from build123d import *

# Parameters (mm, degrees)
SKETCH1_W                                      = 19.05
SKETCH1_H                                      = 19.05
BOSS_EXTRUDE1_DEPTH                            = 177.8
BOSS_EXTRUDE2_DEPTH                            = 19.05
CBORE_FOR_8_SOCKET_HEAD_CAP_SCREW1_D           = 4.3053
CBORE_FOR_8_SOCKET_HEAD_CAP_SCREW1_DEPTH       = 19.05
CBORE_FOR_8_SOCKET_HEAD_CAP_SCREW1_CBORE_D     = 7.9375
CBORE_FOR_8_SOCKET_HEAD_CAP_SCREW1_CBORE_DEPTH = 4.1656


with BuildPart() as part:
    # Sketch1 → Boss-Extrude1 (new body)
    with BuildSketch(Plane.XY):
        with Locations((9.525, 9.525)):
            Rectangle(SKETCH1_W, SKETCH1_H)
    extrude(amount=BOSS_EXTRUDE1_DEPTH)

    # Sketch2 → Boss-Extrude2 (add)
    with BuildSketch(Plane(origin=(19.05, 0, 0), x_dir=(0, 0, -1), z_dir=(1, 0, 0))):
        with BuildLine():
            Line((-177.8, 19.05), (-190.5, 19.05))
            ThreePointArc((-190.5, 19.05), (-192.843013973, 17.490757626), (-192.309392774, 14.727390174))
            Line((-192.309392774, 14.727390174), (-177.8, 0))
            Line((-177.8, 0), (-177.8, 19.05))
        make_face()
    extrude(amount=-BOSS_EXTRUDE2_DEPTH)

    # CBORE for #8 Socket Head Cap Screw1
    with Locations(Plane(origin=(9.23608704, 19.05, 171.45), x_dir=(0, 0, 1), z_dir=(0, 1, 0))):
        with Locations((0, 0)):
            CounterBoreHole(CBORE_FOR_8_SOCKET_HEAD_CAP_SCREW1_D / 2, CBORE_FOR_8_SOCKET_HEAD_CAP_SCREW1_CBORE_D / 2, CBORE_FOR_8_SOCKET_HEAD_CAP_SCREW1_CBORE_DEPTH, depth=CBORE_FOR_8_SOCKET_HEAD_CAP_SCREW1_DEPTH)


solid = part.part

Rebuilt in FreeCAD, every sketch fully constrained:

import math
import FreeCAD as App
import Part
import Sketcher
from FreeCAD import Vector
Q = App.Units.Quantity


def add_polygon(sketch, points):
    """Adds a closed chain of lines whose ends are joined by coincident constraints."""
    first, n = sketch.GeometryCount, len(points)
    for a, b in zip(points, points[1:] + points[:1]):
        sketch.addGeometry(Part.LineSegment(App.Vector(*a, 0), App.Vector(*b, 0)), False)
    for i in range(n):
        sketch.addConstraint(Sketcher.Constraint("Coincident", first + i, 2, first + (i + 1) % n, 1))

doc = App.newDocument("Part")
params = doc.addObject("Spreadsheet::Sheet", "Params")
for row, (alias, value) in enumerate([
    ("sketch1_width", "0.75 in"),
    ("pad1_length", "7 in"),
    ("sketch2_radius", "0.1 in"),
    ("sketch2_height", "0.5 in"),
    ("sketch2_width", "0.75 in"),
    ("pad2_length", "0.75 in"),
    ("hole_diameter", "0.1695 in"),
    ("hole_depth", "0.75 in"),
    ("hole_cbore_diameter", "0.3125 in"),
    ("hole_cbore_depth", "0.164 in"),
], start=1):
    params.set(f"A{row}", alias)
    params.set(f"B{row}", "=" + value)
    params.setAlias(f"B{row}", alias)

body = doc.addObject("PartDesign::Body", "Body")

sketch1 = body.newObject("Sketcher::SketchObject", "Sketch")
sketch1.AttachmentSupport = (doc.getObject("XY_Plane"), [""])
sketch1.MapMode = "FlatFace"
add_polygon(sketch1, [(0, 19), (0, 0), (19, 0), (19, 19)])
sketch1.addConstraint(Sketcher.Constraint("Vertical", 0))
sketch1.addConstraint(Sketcher.Constraint("Horizontal", 1))
sketch1.addConstraint(Sketcher.Constraint("Vertical", 2))
sketch1.addConstraint(Sketcher.Constraint("Horizontal", 3))
sketch1.addConstraint(Sketcher.Constraint("Coincident", 0, 2, -1, 1))
sketch1.addConstraint(Sketcher.Constraint("Equal", 3, 0))
sketch1.addConstraint(Sketcher.Constraint("DistanceX", 1, 1, 1, 2, Q("0.75 in")))
sketch1.setExpression("Constraints[10]", "Params.sketch1_width")
pad1 = body.newObject("PartDesign::Pad", "Pad")
pad1.Profile = sketch1
pad1.setExpression("Length", "Params.pad1_length")

sketch2 = body.newObject("Sketcher::SketchObject", "Sketch001")
sketch2.AttachmentSupport = (doc.getObject("YZ_Plane"), [""])
sketch2.MapMode = "FlatFace"
sketch2.AttachmentOffset = App.Placement(Vector(0, 0, 0.75 * 25.4), App.Rotation())
sketch2.addGeometry(Part.LineSegment(Vector(19.1, 177.8, 0), Vector(19.1, 190.5, 0)), False)
sketch2.addGeometry(Part.ArcOfCircle(Part.Circle(Vector(16.5, 190.5, 0), Vector(0, 0, 1), 2.5), math.radians(0), math.radians(135)), False)
sketch2.addGeometry(Part.LineSegment(Vector(14.7, 192.3, 0), Vector(0, 177.8, 0)), False)
sketch2.addGeometry(Part.LineSegment(Vector(0, 177.8, 0), Vector(19.1, 177.8, 0)), False)
sketch2.addConstraint(Sketcher.Constraint("Tangent", 0, 2, 1, 1))
sketch2.addConstraint(Sketcher.Constraint("Tangent", 1, 2, 2, 1))
sketch2.addConstraint(Sketcher.Constraint("Coincident", 2, 2, 3, 1))
sketch2.addConstraint(Sketcher.Constraint("Coincident", 3, 2, 0, 1))
sketch2.addConstraint(Sketcher.Constraint("Vertical", 0))
sketch2.addConstraint(Sketcher.Constraint("Horizontal", 3))
sketch2.addConstraint(Sketcher.Constraint("PointOnObject", 2, 2, -2))
sketch2.addConstraint(Sketcher.Constraint("Radius", 1, Q("0.1 in")))
sketch2.addConstraint(Sketcher.Constraint("DistanceY", 0, 1, 0, 2, Q("0.5 in")))
sketch2.addConstraint(Sketcher.Constraint("DistanceY", -1, 1, 2, 2, Q("7 in")))
sketch2.addConstraint(Sketcher.Constraint("DistanceX", 3, 1, 3, 2, Q("0.75 in")))
sketch2.setExpression("Constraints[7]", "Params.sketch2_radius")
sketch2.setExpression("Constraints[8]", "Params.sketch2_height")
sketch2.setExpression("Constraints[10]", "Params.sketch2_width")
pad2 = body.newObject("PartDesign::Pad", "Pad001")
pad2.Profile = sketch2
pad2.setExpression("Length", "Params.pad2_length")
pad2.Reversed = True

sketch3 = body.newObject("Sketcher::SketchObject", "Sketch002")
sketch3.AttachmentSupport = (doc.getObject("XZ_Plane"), [""])
sketch3.MapMode = "FlatFace"
sketch3.AttachmentOffset = App.Placement(Vector(0, 0, -0.75 * 25.4), App.Rotation())
sketch3.addGeometry(Part.Circle(Vector(9.2, 171.4, 0), Vector(0, 0, 1), 2.2), False)
sketch3.addConstraint(Sketcher.Constraint("Diameter", 0, Q("0.1695 in")))
sketch3.addConstraint(Sketcher.Constraint("DistanceY", -1, 1, 0, 3, Q("6.75 in")))
sketch3.addConstraint(Sketcher.Constraint("DistanceX", -1, 1, 0, 3, Q("9.236087 mm")))
doc.recompute()
hole = body.newObject("PartDesign::Hole", "Hole")
hole.Profile = sketch3
hole.ThreadType = "None"
hole.setExpression("Diameter", "Params.hole_diameter")
hole.DepthType = "Dimension"
hole.setExpression("Depth", "Params.hole_depth")
hole.DrillPoint = "Flat"
hole.HoleCutType = "Counterbore"
hole.setExpression("HoleCutDiameter", "Params.hole_cbore_diameter")
hole.setExpression("HoleCutDepth", "Params.hole_cbore_depth")
hole.Reversed = True

doc.recompute()
